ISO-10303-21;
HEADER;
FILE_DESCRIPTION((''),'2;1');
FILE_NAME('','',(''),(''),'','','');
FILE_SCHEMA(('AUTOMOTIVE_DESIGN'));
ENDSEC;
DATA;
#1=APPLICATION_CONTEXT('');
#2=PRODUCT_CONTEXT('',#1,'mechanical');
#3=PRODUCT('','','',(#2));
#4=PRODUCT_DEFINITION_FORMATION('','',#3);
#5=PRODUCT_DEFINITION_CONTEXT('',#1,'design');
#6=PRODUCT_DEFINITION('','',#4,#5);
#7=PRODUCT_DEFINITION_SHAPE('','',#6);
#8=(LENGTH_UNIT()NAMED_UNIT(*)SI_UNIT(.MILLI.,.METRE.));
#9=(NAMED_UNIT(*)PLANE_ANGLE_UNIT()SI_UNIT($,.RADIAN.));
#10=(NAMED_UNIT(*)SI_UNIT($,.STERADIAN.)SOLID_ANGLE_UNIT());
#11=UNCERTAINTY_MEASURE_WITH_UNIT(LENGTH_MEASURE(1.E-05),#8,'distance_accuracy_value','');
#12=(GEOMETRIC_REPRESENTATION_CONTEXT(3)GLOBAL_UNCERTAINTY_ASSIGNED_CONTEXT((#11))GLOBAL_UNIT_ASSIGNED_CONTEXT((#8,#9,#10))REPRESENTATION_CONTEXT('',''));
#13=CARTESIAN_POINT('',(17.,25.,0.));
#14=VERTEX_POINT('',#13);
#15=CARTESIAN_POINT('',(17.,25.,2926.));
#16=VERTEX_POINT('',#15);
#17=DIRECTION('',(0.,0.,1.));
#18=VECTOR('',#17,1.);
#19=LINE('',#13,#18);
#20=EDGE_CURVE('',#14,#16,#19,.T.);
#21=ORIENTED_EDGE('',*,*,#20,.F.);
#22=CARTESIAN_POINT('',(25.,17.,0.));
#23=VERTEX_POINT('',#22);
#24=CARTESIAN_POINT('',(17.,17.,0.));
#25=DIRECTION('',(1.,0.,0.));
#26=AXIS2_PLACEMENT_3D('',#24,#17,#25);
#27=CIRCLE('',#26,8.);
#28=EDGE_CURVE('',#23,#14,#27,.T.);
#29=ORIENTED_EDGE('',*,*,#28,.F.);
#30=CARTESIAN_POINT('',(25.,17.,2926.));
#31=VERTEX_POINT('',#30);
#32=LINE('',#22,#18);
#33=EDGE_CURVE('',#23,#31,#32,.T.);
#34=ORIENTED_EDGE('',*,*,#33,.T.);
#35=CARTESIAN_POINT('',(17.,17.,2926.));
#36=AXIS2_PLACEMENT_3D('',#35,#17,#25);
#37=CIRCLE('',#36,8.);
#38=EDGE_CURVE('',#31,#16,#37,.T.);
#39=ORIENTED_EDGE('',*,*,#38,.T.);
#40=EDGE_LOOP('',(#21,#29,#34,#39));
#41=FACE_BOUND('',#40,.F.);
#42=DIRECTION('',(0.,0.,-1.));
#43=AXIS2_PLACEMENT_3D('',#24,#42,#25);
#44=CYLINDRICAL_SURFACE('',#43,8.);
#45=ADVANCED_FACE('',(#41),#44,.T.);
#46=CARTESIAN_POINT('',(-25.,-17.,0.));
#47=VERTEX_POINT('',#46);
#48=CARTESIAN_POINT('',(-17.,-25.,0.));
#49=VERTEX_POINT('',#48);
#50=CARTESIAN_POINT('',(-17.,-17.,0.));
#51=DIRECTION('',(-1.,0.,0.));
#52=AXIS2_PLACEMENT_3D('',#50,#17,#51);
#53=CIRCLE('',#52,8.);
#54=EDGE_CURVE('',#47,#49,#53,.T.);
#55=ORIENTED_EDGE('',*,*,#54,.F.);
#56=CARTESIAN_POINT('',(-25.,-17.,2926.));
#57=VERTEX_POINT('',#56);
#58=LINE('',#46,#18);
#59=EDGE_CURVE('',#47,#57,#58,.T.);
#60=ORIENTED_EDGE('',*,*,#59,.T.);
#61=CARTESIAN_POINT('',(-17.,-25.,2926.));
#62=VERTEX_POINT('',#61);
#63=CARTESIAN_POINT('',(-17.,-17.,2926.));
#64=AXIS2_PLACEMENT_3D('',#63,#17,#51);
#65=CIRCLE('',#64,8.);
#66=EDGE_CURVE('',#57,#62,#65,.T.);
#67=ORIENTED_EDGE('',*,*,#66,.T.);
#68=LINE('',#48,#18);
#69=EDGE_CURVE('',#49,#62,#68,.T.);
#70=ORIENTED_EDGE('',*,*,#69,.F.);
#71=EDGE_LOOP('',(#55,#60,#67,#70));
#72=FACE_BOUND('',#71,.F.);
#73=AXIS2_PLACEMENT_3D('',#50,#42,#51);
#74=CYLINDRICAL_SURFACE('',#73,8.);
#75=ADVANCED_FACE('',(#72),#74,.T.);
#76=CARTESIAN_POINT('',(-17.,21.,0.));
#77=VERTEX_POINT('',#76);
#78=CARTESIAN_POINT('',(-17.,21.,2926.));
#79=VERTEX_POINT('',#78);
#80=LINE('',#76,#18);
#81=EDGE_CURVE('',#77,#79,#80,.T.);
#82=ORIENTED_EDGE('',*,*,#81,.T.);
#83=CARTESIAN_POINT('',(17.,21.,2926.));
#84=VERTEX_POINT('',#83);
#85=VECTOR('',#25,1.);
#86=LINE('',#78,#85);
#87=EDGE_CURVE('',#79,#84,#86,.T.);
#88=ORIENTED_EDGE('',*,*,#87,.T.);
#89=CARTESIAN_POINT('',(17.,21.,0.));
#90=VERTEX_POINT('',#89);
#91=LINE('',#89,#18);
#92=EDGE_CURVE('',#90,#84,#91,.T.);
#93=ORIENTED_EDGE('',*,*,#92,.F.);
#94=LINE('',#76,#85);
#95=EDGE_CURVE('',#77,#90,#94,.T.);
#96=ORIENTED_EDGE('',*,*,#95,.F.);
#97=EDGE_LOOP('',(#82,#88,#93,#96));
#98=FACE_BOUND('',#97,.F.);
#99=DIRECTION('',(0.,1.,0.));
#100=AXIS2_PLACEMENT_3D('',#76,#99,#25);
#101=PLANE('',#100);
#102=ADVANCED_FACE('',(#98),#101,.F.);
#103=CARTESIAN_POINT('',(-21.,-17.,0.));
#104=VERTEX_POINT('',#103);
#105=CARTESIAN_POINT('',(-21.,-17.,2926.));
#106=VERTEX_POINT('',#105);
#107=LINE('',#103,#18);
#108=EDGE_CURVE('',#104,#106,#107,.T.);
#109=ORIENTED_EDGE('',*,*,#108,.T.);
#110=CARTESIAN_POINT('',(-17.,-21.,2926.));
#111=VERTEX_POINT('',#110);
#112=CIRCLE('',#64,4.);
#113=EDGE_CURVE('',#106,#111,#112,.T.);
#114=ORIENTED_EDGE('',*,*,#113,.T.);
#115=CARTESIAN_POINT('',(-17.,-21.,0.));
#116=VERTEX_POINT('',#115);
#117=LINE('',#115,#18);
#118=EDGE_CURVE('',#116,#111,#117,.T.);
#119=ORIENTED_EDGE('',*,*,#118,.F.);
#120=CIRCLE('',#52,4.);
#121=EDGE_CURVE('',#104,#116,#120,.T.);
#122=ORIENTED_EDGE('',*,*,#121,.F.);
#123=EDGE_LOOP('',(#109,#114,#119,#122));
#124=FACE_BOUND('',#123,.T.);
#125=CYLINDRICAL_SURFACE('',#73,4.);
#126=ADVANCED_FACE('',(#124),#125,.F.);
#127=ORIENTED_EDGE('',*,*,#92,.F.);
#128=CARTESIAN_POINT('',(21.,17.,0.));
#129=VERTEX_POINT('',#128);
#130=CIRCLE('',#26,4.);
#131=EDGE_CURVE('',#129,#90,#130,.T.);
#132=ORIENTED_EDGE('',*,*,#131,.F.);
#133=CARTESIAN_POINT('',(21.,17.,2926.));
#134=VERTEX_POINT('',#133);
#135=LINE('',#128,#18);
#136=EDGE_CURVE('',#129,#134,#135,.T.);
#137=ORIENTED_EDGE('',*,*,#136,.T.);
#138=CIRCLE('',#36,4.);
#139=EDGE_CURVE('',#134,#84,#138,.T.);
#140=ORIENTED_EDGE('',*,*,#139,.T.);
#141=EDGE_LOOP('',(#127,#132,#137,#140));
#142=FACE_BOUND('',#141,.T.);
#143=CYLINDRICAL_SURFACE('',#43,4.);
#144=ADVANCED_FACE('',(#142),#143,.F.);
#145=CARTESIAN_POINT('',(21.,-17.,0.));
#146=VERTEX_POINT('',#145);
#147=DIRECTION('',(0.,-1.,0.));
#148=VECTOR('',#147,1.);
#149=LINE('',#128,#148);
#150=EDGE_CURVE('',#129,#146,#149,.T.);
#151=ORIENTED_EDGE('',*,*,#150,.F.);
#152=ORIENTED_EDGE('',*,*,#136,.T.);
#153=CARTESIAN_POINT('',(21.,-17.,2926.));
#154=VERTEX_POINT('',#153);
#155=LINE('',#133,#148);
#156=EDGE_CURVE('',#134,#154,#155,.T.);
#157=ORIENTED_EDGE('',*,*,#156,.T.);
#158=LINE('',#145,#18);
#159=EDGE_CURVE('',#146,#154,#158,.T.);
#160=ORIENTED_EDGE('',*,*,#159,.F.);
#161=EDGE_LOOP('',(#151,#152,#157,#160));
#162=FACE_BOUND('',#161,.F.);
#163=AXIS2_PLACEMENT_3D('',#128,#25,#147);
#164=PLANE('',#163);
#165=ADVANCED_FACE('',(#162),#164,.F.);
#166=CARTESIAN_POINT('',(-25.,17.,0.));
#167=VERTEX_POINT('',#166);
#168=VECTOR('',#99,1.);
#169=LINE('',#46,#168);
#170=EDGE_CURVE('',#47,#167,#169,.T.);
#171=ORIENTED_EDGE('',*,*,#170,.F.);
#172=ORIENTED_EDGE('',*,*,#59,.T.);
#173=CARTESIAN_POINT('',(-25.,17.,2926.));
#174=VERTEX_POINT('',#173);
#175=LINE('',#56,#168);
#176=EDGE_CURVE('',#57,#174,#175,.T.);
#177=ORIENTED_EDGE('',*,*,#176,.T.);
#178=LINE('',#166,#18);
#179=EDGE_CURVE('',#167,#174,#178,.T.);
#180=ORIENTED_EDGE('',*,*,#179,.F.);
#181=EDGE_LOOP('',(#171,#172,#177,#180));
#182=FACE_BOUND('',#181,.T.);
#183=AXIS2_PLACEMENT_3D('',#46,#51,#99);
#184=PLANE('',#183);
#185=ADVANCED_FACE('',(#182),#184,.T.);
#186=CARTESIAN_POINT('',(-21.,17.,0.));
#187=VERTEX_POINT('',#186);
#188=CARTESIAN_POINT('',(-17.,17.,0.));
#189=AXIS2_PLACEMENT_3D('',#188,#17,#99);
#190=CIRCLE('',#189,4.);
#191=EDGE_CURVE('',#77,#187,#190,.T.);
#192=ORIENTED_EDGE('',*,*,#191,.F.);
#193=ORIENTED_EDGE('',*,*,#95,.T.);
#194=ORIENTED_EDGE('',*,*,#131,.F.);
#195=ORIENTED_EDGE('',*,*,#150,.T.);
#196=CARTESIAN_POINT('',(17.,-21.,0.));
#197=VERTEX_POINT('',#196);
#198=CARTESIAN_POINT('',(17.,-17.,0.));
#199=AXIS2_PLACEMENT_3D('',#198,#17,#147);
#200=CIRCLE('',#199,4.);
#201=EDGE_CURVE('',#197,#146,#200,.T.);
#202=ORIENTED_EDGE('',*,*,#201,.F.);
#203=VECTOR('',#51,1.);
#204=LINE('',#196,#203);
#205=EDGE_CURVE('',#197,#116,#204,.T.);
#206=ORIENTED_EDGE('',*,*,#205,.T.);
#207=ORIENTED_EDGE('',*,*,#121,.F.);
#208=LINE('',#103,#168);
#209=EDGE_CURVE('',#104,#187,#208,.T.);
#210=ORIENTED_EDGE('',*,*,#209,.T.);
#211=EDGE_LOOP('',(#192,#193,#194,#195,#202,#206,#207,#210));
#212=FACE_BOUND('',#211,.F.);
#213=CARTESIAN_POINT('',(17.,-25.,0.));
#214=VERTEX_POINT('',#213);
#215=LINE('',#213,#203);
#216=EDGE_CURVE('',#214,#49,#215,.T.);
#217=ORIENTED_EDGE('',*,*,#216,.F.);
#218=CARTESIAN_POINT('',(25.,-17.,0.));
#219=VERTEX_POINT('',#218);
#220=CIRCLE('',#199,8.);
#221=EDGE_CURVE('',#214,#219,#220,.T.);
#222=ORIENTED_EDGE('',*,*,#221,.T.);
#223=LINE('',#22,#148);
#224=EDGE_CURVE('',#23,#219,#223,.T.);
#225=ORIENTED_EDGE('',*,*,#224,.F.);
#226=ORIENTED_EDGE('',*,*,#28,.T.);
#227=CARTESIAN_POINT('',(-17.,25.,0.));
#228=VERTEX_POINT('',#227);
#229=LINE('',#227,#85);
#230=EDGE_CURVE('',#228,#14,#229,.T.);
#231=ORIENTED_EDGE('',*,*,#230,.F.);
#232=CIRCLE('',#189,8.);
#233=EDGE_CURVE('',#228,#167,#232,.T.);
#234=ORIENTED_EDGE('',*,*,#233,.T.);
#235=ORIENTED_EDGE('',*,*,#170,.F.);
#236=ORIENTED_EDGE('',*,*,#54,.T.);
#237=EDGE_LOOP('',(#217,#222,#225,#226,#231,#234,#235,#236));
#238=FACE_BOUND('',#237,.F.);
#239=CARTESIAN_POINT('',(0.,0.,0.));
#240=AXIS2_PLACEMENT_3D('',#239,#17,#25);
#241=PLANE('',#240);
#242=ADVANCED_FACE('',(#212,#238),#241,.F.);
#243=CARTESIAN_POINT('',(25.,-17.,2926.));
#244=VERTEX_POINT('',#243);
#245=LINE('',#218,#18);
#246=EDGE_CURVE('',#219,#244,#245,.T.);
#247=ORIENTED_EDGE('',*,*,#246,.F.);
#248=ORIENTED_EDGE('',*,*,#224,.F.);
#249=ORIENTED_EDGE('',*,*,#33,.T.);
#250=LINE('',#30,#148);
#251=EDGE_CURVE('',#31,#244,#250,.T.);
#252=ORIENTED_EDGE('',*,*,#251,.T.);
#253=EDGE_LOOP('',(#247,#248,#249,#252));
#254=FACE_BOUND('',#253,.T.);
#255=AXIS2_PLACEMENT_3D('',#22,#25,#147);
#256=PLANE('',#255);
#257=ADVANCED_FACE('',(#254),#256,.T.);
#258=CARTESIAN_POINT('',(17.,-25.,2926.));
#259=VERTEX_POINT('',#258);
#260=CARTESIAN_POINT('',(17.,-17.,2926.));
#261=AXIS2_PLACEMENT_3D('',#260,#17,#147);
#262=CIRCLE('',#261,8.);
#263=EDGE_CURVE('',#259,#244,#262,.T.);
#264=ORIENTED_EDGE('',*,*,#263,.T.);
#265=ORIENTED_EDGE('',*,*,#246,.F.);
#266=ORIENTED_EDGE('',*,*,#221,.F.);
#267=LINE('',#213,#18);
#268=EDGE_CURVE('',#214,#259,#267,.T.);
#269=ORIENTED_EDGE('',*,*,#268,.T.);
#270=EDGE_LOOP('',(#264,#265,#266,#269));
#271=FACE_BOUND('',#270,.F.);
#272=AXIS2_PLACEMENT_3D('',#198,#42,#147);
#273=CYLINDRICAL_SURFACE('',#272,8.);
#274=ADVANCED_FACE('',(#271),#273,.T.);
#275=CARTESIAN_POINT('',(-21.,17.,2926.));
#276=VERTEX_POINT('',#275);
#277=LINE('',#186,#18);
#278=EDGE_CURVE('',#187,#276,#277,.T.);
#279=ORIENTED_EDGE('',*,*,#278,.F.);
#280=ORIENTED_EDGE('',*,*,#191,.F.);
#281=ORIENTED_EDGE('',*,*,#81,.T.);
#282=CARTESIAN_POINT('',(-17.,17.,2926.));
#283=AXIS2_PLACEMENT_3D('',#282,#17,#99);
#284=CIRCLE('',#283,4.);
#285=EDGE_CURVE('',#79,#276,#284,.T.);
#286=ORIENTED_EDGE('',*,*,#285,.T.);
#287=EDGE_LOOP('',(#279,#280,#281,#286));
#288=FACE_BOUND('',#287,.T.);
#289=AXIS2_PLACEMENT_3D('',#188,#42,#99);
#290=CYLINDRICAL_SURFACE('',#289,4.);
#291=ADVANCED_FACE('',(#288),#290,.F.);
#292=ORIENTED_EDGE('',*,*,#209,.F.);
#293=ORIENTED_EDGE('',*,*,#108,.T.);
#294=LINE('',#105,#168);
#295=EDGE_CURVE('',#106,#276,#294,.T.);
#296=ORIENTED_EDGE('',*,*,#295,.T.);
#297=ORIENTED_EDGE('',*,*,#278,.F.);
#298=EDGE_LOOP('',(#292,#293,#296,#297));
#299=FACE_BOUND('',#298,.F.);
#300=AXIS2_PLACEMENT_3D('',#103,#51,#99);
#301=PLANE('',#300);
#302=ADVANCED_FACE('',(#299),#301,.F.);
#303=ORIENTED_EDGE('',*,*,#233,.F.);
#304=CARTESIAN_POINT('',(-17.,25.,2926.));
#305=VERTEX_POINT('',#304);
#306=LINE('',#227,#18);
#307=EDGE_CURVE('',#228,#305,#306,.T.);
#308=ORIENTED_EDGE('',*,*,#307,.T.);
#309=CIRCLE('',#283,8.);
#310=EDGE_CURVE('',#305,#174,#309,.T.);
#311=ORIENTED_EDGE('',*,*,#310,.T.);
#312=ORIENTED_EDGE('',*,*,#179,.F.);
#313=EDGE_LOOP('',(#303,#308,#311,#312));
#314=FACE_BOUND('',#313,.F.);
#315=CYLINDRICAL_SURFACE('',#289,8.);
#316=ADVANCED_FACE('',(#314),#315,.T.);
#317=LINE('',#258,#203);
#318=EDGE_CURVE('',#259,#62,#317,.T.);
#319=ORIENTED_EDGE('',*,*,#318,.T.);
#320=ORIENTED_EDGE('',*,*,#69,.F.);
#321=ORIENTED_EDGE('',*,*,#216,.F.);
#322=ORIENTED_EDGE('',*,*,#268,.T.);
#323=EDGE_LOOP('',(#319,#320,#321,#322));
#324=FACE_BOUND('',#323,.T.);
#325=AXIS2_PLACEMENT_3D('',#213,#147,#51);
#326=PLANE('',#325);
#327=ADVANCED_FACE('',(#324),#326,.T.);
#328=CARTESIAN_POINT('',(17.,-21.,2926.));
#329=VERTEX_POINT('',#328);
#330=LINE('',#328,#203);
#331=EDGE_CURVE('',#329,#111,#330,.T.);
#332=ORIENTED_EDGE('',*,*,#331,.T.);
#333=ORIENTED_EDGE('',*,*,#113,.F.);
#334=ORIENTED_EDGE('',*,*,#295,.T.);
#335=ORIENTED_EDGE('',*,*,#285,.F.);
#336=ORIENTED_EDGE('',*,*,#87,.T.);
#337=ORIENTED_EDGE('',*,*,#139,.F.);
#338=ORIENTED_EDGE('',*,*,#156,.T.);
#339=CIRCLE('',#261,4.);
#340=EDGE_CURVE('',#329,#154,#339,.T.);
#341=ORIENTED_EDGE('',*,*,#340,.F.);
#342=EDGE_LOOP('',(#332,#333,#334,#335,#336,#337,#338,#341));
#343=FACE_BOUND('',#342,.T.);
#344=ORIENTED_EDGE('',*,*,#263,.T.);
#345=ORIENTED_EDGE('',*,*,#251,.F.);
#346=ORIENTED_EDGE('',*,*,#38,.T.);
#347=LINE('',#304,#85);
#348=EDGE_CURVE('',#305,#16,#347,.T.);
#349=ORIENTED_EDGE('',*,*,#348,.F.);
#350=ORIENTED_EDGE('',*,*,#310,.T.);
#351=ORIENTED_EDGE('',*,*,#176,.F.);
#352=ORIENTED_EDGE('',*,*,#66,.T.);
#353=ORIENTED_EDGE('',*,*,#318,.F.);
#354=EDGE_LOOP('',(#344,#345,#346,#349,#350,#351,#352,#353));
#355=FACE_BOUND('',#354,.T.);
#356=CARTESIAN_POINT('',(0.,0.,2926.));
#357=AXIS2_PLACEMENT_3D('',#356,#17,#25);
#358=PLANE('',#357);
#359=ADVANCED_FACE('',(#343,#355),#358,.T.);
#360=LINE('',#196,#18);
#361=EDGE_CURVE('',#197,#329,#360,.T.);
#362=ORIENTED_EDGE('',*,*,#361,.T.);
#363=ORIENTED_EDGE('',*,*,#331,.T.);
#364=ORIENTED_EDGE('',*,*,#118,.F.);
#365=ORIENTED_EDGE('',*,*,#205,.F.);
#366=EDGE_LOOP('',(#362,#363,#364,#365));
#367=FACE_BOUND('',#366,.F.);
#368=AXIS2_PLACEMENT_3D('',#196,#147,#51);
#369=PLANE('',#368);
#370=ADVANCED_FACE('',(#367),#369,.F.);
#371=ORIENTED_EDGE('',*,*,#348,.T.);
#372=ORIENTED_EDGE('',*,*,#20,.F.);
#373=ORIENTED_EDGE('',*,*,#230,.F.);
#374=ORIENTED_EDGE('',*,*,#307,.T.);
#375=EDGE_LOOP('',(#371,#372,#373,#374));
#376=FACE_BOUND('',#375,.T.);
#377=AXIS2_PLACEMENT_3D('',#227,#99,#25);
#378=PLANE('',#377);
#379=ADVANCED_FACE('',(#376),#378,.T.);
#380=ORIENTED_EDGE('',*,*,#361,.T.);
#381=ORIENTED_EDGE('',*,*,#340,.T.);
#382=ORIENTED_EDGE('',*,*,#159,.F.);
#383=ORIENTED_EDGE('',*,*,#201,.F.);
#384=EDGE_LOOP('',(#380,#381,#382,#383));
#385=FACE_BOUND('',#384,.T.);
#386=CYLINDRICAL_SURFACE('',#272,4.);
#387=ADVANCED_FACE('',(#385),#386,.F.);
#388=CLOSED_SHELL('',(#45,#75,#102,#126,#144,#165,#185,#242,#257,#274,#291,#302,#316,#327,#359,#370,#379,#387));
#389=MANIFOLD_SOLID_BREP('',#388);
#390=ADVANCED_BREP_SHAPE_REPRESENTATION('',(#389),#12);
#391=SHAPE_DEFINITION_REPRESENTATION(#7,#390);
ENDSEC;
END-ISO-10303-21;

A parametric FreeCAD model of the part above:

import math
import FreeCAD as App
import Part
import Sketcher

V = App.Vector

doc = App.newDocument("Part")
params = doc.addObject("Spreadsheet::Sheet", "Params")
for row, (alias, value) in enumerate([
    ("sketch1_radius", "8 mm"),
    ("sketch1_radius2", "4 mm"),
    ("pad1_length", "2926 mm"),
], start=1):
    params.set(f"A{row}", alias)
    params.set(f"B{row}", "=" + value)
    params.setAlias(f"B{row}", alias)

body = doc.addObject("PartDesign::Body", "Body")

# Sketch on XY plane
sketch1 = body.newObject("Sketcher::SketchObject", "Sketch")
sketch1.AttachmentSupport = (doc.getObject("XY_Plane"), [""])
sketch1.MapMode = "FlatFace"
sketch1.addGeometry([
    Part.LineSegment(V(-25, 17, 0), V(-25, -17, 0)),  # 0
    Part.ArcOfCircle(Part.Circle(V(-17, -17, 0), V(0, 0, 1), 8), math.radians(180), math.radians(270)),  # 1
    Part.LineSegment(V(-17, -25, 0), V(17, -25, 0)),  # 2
    Part.ArcOfCircle(Part.Circle(V(17, -17, 0), V(0, 0, 1), 8), math.radians(-90), math.radians(0)),  # 3
    Part.LineSegment(V(25, -17, 0), V(25, 17, 0)),  # 4
    Part.ArcOfCircle(Part.Circle(V(17, 17, 0), V(0, 0, 1), 8), math.radians(0), math.radians(90)),  # 5
    Part.LineSegment(V(17, 25, 0), V(-17, 25, 0)),  # 6
    Part.ArcOfCircle(Part.Circle(V(-17, 17, 0), V(0, 0, 1), 8), math.radians(90), math.radians(180)),  # 7
    Part.ArcOfCircle(Part.Circle(V(-17, 17, 0), V(0, 0, 1), 4), math.radians(90), math.radians(180)),  # 8
    Part.LineSegment(V(-17, 21, 0), V(17, 21, 0)),  # 9
    Part.ArcOfCircle(Part.Circle(V(17, 17, 0), V(0, 0, 1), 4), math.radians(0), math.radians(90)),  # 10
    Part.LineSegment(V(21, 17, 0), V(21, -17, 0)),  # 11
    Part.ArcOfCircle(Part.Circle(V(17, -17, 0), V(0, 0, 1), 4), math.radians(-90), math.radians(0)),  # 12
    Part.LineSegment(V(17, -21, 0), V(-17, -21, 0)),  # 13
    Part.ArcOfCircle(Part.Circle(V(-17, -17, 0), V(0, 0, 1), 4), math.radians(180), math.radians(270)),  # 14
    Part.LineSegment(V(-21, -17, 0), V(-21, 17, 0)),  # 15
], False)
sketch1.addConstraint([
    Sketcher.Constraint("Tangent", 0, 2, 1, 1),
    Sketcher.Constraint("Tangent", 1, 2, 2, 1),
    Sketcher.Constraint("Tangent", 2, 2, 3, 1),
    Sketcher.Constraint("Tangent", 3, 2, 4, 1),
    Sketcher.Constraint("Tangent", 4, 2, 5, 1),
    Sketcher.Constraint("Tangent", 5, 2, 6, 1),
    Sketcher.Constraint("Tangent", 6, 2, 7, 1),
    Sketcher.Constraint("Tangent", 7, 2, 0, 1),
    Sketcher.Constraint("Tangent", 8, 1, 9, 1),
    Sketcher.Constraint("Tangent", 9, 2, 10, 2),
    Sketcher.Constraint("Tangent", 10, 1, 11, 1),
    Sketcher.Constraint("Tangent", 11, 2, 12, 2),
    Sketcher.Constraint("Tangent", 12, 1, 13, 1),
    Sketcher.Constraint("Tangent", 13, 2, 14, 2),
    Sketcher.Constraint("Tangent", 14, 1, 15, 1),
    Sketcher.Constraint("Tangent", 15, 2, 8, 2),
    Sketcher.Constraint("Vertical", 0),
    Sketcher.Constraint("Horizontal", 2),
    Sketcher.Constraint("Vertical", 4),
    Sketcher.Constraint("Horizontal", 6),
    Sketcher.Constraint("Horizontal", 9),
    Sketcher.Constraint("Vertical", 11),
    Sketcher.Constraint("Horizontal", 13),
    Sketcher.Constraint("Vertical", 15),
    Sketcher.Constraint("Coincident", 8, 3, 7, 3),
    Sketcher.Constraint("Coincident", 10, 3, 5, 3),
    Sketcher.Constraint("Coincident", 12, 3, 3, 3),
    Sketcher.Constraint("Equal", 1, 3),
    Sketcher.Constraint("Equal", 3, 5),
    Sketcher.Constraint("Equal", 5, 7),
    Sketcher.Constraint("Equal", 12, 14),
    Sketcher.Constraint("Symmetric", 1, 3, 5, 3, -1, 1),
    Sketcher.Constraint("Equal", 13, 0),
    Sketcher.Constraint("Radius", 1, 8.0),
    Sketcher.Constraint("Radius", 8, 4.0),
    Sketcher.Constraint("DistanceX", 0, 2, -1, 1, 25.0),
])
sketch1.setExpression("Constraints[33]", "Params.sketch1_radius")
sketch1.setExpression("Constraints[34]", "Params.sketch1_radius2")
pad1 = body.newObject("PartDesign::Pad", "Pad")
pad1.Profile = sketch1
pad1.setExpression("Length", "Params.pad1_length")

doc.recompute()
